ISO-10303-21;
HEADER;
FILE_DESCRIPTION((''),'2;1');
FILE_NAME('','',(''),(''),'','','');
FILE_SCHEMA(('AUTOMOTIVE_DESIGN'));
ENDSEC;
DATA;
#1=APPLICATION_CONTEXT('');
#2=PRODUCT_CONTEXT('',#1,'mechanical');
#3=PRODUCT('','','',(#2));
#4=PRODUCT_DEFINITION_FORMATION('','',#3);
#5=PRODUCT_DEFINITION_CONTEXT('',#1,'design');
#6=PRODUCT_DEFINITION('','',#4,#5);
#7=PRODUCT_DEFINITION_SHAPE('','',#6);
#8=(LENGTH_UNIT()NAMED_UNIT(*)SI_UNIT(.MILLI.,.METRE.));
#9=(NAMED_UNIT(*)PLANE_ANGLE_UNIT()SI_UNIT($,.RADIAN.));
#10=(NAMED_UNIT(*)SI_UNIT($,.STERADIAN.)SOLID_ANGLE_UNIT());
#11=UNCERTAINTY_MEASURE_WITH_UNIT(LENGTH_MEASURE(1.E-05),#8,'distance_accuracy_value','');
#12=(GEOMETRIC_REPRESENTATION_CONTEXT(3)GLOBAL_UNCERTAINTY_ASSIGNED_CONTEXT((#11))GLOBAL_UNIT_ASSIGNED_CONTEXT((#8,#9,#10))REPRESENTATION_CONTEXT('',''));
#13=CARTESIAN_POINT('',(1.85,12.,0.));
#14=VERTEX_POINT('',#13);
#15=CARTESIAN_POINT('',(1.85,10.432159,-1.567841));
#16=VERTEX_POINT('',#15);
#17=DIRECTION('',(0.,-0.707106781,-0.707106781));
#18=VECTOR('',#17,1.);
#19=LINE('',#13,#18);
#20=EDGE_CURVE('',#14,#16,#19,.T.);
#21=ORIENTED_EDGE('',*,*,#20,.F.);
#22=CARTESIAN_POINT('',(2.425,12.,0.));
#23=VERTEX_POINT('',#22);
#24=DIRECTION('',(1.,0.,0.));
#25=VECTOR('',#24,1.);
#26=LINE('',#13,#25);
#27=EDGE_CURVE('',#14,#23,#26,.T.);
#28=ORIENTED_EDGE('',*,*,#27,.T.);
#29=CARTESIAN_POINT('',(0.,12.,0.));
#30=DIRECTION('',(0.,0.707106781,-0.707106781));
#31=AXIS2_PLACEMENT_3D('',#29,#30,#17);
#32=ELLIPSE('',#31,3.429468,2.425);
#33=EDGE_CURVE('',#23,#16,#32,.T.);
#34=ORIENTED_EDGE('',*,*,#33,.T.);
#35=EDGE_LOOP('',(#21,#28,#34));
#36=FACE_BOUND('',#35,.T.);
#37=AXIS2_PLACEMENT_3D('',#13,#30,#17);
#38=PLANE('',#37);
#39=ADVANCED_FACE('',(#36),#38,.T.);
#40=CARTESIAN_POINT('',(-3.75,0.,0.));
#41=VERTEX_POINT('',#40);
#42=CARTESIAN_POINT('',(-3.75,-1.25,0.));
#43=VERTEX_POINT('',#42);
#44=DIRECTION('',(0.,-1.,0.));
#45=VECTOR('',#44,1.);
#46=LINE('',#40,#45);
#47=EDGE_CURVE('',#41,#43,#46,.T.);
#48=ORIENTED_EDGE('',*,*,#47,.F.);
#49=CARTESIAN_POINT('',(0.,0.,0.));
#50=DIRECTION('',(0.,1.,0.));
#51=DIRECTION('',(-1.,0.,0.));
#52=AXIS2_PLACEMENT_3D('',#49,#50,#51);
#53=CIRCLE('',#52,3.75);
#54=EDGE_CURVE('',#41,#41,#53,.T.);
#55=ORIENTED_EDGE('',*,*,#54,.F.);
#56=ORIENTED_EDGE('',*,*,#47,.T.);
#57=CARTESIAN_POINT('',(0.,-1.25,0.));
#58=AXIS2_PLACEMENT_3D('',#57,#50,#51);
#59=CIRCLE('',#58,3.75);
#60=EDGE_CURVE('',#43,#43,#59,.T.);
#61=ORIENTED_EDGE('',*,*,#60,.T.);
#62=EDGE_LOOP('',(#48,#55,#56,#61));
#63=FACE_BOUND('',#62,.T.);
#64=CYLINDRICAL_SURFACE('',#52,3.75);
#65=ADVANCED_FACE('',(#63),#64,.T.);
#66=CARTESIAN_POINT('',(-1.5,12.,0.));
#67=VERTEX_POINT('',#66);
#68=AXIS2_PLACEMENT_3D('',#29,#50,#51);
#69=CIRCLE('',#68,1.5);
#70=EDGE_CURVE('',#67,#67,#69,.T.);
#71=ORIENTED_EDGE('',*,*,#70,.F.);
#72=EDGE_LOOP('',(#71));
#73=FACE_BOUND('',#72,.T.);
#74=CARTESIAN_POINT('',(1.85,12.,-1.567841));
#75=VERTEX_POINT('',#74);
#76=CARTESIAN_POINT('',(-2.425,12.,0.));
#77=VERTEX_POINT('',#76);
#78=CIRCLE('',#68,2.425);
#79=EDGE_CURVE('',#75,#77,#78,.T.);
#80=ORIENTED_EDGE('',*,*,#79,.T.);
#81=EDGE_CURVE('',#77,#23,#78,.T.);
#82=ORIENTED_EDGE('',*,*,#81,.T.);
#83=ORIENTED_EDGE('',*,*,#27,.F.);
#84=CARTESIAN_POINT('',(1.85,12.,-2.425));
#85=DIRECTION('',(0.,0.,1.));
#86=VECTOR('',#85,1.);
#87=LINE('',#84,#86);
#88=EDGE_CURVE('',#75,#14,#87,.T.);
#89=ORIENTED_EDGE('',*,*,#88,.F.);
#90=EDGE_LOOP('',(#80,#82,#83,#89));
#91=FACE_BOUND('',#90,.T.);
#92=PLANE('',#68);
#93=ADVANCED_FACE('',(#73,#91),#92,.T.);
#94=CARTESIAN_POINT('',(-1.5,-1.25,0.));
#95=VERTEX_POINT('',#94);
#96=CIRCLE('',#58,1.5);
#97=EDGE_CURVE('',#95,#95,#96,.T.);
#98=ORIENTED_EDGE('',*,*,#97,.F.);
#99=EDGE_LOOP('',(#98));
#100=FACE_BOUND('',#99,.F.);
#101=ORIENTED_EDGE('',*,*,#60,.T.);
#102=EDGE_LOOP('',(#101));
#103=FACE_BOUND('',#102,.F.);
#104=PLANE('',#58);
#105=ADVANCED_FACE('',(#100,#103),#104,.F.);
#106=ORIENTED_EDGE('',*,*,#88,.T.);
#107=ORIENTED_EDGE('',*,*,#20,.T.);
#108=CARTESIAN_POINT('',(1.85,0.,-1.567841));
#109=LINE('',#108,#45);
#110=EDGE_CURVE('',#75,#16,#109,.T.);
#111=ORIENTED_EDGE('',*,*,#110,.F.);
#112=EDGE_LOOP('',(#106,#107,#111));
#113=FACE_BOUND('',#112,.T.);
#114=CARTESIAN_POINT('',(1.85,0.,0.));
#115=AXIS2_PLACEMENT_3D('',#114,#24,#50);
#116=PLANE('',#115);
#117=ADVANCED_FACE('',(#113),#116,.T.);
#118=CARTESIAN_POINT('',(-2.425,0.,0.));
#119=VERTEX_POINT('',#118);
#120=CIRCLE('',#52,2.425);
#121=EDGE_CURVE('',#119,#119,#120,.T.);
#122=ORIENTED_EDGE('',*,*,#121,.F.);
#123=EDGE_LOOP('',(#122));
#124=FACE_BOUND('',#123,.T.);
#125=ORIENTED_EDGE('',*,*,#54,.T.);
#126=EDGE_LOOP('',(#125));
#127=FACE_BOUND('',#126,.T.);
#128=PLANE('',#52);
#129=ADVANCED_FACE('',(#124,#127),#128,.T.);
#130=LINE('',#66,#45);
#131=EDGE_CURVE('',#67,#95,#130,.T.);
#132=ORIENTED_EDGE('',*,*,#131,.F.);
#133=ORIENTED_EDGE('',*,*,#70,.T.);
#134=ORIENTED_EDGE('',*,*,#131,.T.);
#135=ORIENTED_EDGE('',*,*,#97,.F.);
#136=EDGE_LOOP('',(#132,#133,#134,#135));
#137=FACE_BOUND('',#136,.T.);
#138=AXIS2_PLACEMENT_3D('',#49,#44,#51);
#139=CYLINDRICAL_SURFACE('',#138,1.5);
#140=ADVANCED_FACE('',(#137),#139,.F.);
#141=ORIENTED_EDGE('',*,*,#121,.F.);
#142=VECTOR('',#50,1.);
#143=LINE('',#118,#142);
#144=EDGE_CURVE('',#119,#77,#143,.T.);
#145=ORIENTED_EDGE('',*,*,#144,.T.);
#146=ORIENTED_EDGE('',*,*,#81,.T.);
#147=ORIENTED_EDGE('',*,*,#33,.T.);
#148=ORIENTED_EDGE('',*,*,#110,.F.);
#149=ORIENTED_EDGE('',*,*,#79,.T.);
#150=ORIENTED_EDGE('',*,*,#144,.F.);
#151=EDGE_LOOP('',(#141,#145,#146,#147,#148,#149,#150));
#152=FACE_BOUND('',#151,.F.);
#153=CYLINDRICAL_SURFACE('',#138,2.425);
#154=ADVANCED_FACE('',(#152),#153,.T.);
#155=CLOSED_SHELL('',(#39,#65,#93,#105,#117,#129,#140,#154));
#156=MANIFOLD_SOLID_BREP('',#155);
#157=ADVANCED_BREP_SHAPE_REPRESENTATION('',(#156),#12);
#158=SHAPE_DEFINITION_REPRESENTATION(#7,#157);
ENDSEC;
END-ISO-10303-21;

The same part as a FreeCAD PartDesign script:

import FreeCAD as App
import Part
import Sketcher

V = App.Vector

doc = App.newDocument("Part")
body = doc.addObject("PartDesign::Body", "Body")

# Sketch on XZ plane
sketch1 = body.newObject("Sketcher::SketchObject", "Sketch")
sketch1.AttachmentSupport = (doc.getObject("XZ_Plane"), [""])
sketch1.MapMode = "FlatFace"
sketch1.addGeometry([
    Part.Circle(V(0, 0, 0), V(0, 0, 1), 2.425),
    Part.Circle(V(0, 0, 0), V(0, 0, 1), 1.5),
], False)
sketch1.addConstraint([
    Sketcher.Constraint("Coincident", 0, 3, -1, 1),
    Sketcher.Constraint("Coincident", 1, 3, -1, 1),
    Sketcher.Constraint("Diameter", 1, 3.0),
    Sketcher.Constraint("Diameter", 0, 4.85),
])
pad1 = body.newObject("PartDesign::Pad", "Pad")
pad1.Profile = sketch1
pad1.Length = 12
pad1.Reversed = True

# Sketch on XZ plane
sketch2 = body.newObject("Sketcher::SketchObject", "Sketch001")
sketch2.AttachmentSupport = (doc.getObject("XZ_Plane"), [""])
sketch2.MapMode = "FlatFace"
sketch2.addGeometry([
    Part.Circle(V(0, 0, 0), V(0, 0, 1), 3.75),
    Part.Circle(V(0, 0, 0), V(0, 0, 1), 1.5),
], False)
sketch2.addConstraint([
    Sketcher.Constraint("Coincident", 0, 3, -1, 1),
    Sketcher.Constraint("Coincident", 1, 3, -1, 1),
    Sketcher.Constraint("Diameter", 1, 3.0),
    Sketcher.Constraint("Diameter", 0, 7.5),
])
pad2 = body.newObject("PartDesign::Pad", "Pad001")
pad2.Profile = sketch2
pad2.Length = 1.25

# Sketch on YZ plane
sketch3 = body.newObject("Sketcher::SketchObject", "Sketch002")
sketch3.AttachmentSupport = (doc.getObject("YZ_Plane"), [""])
sketch3.MapMode = "FlatFace"
sketch3.AttachmentOffset = App.Placement(V(0, 0, 1.85), App.Rotation())
sketch3.addGeometry([
    Part.LineSegment(V(9.575, -2.425, 0), V(12, -2.425, 0)),
    Part.LineSegment(V(12, -2.425, 0), V(12, 0, 0)),
    Part.LineSegment(V(12, 0, 0), V(9.575, -2.425, 0)),
], False)
sketch3.addConstraint([
    Sketcher.Constraint("Coincident", 0, 2, 1, 1),
    Sketcher.Constraint("Coincident", 1, 2, 2, 1),
    Sketcher.Constraint("Coincident", 2, 2, 0, 1),
    Sketcher.Constraint("Horizontal", 0),
    Sketcher.Constraint("Vertical", 1),
    Sketcher.Constraint("PointOnObject", 1, 2, -1),
    Sketcher.Constraint("Equal", 0, 1),
    Sketcher.Constraint("DistanceX", -1, 1, 0, 2, 12.0),
    Sketcher.Constraint("DistanceX", 0, 1, 0, 2, 2.425),
])
pocket1 = body.newObject("PartDesign::Pocket", "Pocket")
pocket1.Profile = sketch3
pocket1.Length = 10
pocket1.Reversed = True

doc.recompute()
